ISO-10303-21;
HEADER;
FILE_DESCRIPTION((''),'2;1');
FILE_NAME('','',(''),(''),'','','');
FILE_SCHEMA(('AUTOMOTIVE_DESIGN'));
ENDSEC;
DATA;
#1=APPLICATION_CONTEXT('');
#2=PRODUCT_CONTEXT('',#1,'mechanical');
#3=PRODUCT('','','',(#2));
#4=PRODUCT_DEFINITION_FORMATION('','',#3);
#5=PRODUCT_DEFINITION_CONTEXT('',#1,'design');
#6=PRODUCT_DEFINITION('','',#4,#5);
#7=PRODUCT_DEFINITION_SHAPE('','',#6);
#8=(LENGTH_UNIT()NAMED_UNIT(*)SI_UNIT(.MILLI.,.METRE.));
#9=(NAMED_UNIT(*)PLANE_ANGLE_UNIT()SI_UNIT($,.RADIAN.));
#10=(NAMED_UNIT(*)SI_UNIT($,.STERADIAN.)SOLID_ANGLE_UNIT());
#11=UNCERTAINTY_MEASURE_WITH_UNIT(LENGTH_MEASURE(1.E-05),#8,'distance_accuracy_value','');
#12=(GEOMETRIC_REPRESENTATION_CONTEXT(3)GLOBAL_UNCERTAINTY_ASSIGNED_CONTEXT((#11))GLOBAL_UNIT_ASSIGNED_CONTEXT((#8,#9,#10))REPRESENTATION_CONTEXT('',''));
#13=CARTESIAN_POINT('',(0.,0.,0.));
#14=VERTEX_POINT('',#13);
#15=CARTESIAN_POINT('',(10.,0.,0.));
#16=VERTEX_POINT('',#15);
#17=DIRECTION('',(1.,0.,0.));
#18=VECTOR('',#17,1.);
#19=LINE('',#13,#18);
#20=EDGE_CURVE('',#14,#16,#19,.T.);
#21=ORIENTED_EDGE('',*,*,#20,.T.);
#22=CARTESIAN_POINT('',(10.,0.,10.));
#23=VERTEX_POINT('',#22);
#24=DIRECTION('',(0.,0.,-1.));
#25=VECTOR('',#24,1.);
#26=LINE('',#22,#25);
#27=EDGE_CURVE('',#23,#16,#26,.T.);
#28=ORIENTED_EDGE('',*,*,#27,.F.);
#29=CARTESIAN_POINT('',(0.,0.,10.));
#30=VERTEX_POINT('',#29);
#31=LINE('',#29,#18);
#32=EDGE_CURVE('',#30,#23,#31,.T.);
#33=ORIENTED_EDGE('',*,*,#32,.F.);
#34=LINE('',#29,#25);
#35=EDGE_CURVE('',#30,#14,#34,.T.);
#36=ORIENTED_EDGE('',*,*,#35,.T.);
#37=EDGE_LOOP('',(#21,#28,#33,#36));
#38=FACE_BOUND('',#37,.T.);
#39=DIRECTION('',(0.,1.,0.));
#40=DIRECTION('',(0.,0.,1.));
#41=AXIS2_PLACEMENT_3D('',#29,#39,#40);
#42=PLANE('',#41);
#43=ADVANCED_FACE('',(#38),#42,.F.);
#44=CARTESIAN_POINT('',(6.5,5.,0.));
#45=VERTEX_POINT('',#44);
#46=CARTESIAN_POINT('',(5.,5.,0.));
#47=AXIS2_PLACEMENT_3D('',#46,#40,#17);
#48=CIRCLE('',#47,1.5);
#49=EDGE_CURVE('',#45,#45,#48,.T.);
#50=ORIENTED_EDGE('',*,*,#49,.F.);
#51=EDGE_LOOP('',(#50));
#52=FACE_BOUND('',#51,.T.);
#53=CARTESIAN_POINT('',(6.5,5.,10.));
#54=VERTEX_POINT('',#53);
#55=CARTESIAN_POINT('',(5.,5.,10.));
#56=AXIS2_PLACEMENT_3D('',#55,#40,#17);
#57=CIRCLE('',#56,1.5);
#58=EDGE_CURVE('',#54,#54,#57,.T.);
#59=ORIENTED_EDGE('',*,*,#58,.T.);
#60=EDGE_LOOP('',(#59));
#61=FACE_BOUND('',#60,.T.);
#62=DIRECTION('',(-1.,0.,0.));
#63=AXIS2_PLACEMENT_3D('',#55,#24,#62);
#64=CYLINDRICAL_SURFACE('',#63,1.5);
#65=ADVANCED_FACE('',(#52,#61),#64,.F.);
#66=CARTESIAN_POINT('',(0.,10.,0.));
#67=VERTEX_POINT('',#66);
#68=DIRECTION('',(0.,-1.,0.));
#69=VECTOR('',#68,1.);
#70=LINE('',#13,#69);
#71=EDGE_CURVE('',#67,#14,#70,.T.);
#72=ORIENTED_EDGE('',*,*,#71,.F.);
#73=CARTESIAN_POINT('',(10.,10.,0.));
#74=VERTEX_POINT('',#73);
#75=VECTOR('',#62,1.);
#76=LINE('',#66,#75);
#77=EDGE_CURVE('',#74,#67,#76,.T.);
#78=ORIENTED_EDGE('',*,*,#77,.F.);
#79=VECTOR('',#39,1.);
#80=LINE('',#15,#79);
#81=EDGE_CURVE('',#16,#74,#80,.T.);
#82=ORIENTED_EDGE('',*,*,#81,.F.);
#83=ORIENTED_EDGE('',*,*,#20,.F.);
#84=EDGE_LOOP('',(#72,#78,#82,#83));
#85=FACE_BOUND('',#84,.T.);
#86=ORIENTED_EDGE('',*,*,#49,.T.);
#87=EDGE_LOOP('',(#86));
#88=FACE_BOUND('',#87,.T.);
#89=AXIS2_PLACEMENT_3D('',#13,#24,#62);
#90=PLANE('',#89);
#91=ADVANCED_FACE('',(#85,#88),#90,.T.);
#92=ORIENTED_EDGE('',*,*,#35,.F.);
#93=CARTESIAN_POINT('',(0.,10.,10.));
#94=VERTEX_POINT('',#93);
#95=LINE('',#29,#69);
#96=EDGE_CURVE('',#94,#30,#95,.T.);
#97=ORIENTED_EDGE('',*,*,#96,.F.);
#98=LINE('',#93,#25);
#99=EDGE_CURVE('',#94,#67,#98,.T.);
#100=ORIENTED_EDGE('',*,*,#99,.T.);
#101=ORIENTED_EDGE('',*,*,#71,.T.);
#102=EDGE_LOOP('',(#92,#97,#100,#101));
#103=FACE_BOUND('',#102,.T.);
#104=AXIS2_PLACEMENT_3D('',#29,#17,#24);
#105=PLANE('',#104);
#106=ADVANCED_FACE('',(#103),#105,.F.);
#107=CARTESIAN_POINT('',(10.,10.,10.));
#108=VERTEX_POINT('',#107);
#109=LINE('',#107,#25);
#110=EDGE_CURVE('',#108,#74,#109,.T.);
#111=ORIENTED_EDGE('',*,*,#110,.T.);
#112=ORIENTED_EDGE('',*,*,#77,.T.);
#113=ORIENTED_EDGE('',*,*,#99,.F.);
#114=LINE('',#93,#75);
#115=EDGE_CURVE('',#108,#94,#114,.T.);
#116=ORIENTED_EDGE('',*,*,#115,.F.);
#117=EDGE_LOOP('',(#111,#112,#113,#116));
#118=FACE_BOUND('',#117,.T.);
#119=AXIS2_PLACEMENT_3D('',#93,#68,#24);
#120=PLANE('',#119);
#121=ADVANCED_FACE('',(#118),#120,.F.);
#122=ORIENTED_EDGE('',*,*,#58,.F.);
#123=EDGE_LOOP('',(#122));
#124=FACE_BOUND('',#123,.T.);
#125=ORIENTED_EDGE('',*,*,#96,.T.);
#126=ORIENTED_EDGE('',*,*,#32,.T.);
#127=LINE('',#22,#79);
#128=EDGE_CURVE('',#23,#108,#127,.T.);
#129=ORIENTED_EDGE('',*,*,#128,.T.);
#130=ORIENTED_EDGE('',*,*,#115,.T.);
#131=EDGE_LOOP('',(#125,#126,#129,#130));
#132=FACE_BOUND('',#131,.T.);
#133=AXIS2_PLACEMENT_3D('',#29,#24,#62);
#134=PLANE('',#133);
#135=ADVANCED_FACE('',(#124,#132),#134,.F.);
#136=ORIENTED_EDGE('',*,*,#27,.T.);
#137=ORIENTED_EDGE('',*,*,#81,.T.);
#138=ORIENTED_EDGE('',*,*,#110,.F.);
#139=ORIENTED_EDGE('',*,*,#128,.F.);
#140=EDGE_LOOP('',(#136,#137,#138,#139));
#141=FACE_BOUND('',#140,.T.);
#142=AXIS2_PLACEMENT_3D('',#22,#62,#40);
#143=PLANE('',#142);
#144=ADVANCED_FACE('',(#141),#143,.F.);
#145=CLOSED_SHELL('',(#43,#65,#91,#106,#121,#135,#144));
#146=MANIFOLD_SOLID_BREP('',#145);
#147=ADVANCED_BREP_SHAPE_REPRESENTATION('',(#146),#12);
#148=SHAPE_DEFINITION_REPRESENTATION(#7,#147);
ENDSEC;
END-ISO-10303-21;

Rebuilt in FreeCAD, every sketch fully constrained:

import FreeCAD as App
import Part
import Sketcher
from FreeCAD import Vector


def add_polygon(sketch, points):
    """Adds a closed chain of lines whose ends are joined by coincident constraints."""
    first, n = sketch.GeometryCount, len(points)
    for a, b in zip(points, points[1:] + points[:1]):
        sketch.addGeometry(Part.LineSegment(App.Vector(*a, 0), App.Vector(*b, 0)), False)
    for i in range(n):
        sketch.addConstraint(Sketcher.Constraint("Coincident", first + i, 2, first + (i + 1) % n, 1))

doc = App.newDocument("Part")
body = doc.addObject("PartDesign::Body", "Body")

sketch1 = body.newObject("Sketcher::SketchObject", "Sketch")
sketch1.AttachmentSupport = (doc.getObject("XY_Plane"), [""])
sketch1.MapMode = "FlatFace"
add_polygon(sketch1, [(0, 10), (0, 0), (10, 0), (10, 10)])
sketch1.addConstraint([
    Sketcher.Constraint("Vertical", 0),
    Sketcher.Constraint("Horizontal", 1),
    Sketcher.Constraint("Vertical", 2),
    Sketcher.Constraint("Horizontal", 3),
    Sketcher.Constraint("Coincident", 0, 2, -1, 1),
    Sketcher.Constraint("Equal", 3, 0),
    Sketcher.Constraint("DistanceX", 1, 1, 1, 2, 10.0),
])
pad1 = body.newObject("PartDesign::Pad", "Pad")
pad1.Profile = sketch1
pad1.Length = 10

sketch2 = body.newObject("Sketcher::SketchObject", "Sketch001")
sketch2.AttachmentSupport = (doc.getObject("XY_Plane"), [""])
sketch2.MapMode = "FlatFace"
sketch2.addGeometry(Part.Circle(Vector(5, 5, 0), Vector(0, 0, 1), 1.5), False)
sketch2.addConstraint([
    Sketcher.Constraint("Diameter", 0, 3.0),
    Sketcher.Constraint("DistanceX", -1, 1, 0, 3, 5.0),
    Sketcher.Constraint("DistanceY", -1, 1, 0, 3, 5.0),
])
pocket1 = body.newObject("PartDesign::Pocket", "Pocket")
pocket1.Profile = sketch2
pocket1.Type = "ThroughAll"
pocket1.Reversed = True

doc.recompute()
